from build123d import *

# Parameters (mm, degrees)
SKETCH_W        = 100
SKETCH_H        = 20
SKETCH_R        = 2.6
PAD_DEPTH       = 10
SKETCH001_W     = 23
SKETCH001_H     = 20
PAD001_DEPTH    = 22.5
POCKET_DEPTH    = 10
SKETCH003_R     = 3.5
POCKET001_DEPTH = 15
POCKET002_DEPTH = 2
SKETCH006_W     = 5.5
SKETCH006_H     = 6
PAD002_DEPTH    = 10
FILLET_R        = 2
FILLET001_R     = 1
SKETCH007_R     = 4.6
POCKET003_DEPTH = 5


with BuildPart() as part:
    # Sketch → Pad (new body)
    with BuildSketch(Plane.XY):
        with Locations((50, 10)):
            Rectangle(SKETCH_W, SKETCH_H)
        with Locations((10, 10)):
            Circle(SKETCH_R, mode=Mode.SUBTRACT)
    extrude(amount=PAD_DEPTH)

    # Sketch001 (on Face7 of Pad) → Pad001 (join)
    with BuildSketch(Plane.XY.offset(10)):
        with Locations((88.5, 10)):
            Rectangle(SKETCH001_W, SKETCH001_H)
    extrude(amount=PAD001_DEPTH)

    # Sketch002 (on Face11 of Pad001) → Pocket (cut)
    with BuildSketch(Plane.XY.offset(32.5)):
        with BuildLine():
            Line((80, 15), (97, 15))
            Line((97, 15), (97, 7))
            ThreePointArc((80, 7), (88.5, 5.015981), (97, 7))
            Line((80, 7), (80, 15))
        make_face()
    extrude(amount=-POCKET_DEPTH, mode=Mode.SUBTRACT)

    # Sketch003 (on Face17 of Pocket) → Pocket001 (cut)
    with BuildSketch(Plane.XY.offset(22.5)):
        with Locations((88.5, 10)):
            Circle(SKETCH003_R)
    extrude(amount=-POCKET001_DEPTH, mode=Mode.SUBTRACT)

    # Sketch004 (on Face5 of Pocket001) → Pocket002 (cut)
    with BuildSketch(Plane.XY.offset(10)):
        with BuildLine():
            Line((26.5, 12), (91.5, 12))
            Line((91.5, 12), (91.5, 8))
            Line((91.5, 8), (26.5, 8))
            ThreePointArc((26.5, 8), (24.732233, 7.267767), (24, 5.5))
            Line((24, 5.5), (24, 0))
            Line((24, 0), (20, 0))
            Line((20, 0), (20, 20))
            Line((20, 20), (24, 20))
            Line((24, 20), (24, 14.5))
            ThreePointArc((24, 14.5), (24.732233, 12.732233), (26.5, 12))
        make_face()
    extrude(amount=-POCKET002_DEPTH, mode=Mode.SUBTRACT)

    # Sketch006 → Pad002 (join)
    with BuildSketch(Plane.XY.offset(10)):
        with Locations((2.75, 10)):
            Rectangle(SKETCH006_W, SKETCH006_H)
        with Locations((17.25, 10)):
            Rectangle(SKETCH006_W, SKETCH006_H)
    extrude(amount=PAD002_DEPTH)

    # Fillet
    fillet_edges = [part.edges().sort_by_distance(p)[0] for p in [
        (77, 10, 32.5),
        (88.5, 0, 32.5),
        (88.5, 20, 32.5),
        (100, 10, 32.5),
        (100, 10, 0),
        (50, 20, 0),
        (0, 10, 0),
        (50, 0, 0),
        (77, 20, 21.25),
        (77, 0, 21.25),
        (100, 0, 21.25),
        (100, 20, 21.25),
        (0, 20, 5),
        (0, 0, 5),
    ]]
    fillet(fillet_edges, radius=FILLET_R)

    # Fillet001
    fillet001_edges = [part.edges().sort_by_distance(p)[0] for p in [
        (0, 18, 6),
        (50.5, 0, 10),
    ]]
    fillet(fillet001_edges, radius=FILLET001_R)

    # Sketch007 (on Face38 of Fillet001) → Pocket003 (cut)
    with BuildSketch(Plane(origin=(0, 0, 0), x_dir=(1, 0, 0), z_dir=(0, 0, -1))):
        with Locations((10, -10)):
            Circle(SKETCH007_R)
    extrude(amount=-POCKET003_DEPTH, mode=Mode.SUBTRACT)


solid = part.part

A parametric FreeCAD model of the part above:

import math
import FreeCAD as App
import Part
import Sketcher
from FreeCAD import Vector


def edges_at(feature, points):
    """Names of the edges that pass closest to the given points."""
    edges = feature.Shape.Edges
    near = lambda p: min(range(len(edges)), key=lambda i: edges[i].distToShape(Part.Vertex(*p))[0])
    return sorted({f"Edge{near(p) + 1}" for p in points})

doc = App.newDocument("Part")
params = doc.addObject("Spreadsheet::Sheet", "Params")
for row, (alias, value) in enumerate([
    ("sketch1_diameter", "5.2 mm"),
    ("sketch1_width", "100 mm"),
    ("sketch1_height", "20 mm"),
    ("pad1_length", "10 mm"),
    ("sketch2_width", "23 mm"),
    ("sketch2_height", "20 mm"),
    ("pad2_length", "22.5 mm"),
    ("sketch3_radius", "19.2 mm"),
    ("sketch3_width", "17 mm"),
    ("sketch3_height", "8 mm"),
    ("pocket1_length", "10 mm"),
    ("sketch4_diameter", "7 mm"),
    ("pocket2_length", "15 mm"),
    ("sketch5_radius", "2.5 mm"),
    ("sketch5_width", "65 mm"),
    ("sketch5_width2", "4 mm"),
    ("sketch5_height", "20 mm"),
    ("pocket3_length", "2 mm"),
    ("sketch6_height", "6 mm"),
    ("sketch6_width", "5.5 mm"),
    ("pad3_length", "10 mm"),
    ("fillet_radius", "2 mm"),
    ("fillet2_radius", "1 mm"),
    ("sketch7_diameter", "9.2 mm"),
    ("pocket4_length", "5 mm"),
], start=1):
    params.set(f"A{row}", alias)
    params.set(f"B{row}", "=" + value)
    params.setAlias(f"B{row}", alias)

body = doc.addObject("PartDesign::Body", "Body")

# Sketch on XY plane
sketch1 = body.newObject("Sketcher::SketchObject", "Sketch")
sketch1.AttachmentSupport = (doc.getObject("XY_Plane"), [""])
sketch1.MapMode = "FlatFace"
sketch1.addGeometry([
    Part.LineSegment(Vector(0, 20, 0), Vector(0, 0, 0)),  # 0
    Part.LineSegment(Vector(0, 0, 0), Vector(100, 0, 0)),  # 1
    Part.LineSegment(Vector(100, 0, 0), Vector(100, 20, 0)),  # 2
    Part.LineSegment(Vector(100, 20, 0), Vector(0, 20, 0)),  # 3
    Part.Circle(Vector(10, 10, 0), Vector(0, 0, 1), 2.6),  # 4
], False)
sketch1.addConstraint([
    Sketcher.Constraint("Coincident", 0, 2, 1, 1),
    Sketcher.Constraint("Coincident", 1, 2, 2, 1),
    Sketcher.Constraint("Coincident", 2, 2, 3, 1),
    Sketcher.Constraint("Coincident", 3, 2, 0, 1),
    Sketcher.Constraint("Vertical", 0),
    Sketcher.Constraint("Horizontal", 1),
    Sketcher.Constraint("Vertical", 2),
    Sketcher.Constraint("Horizontal", 3),
    Sketcher.Constraint("Coincident", 0, 2, -1, 1),
    Sketcher.Constraint("Diameter", 4, 5.2),
    Sketcher.Constraint("DistanceX", 1, 1, 1, 2, 100.0),
    Sketcher.Constraint("DistanceY", 0, 2, 0, 1, 20.0),
    Sketcher.Constraint("DistanceX", -1, 1, 4, 3, 10.0),
    Sketcher.Constraint("DistanceY", -1, 1, 4, 3, 10.0),
])
sketch1.setExpression("Constraints[9]", "Params.sketch1_diameter")
sketch1.setExpression("Constraints[10]", "Params.sketch1_width")
sketch1.setExpression("Constraints[11]", "Params.sketch1_height")
pad1 = body.newObject("PartDesign::Pad", "Pad")
pad1.Profile = sketch1
pad1.setExpression("Length", "Params.pad1_length")

# Sketch on XY plane
sketch2 = body.newObject("Sketcher::SketchObject", "Sketch001")
sketch2.AttachmentSupport = (doc.getObject("XY_Plane"), [""])
sketch2.MapMode = "FlatFace"
sketch2.AttachmentOffset = App.Placement(Vector(0, 0, 10), App.Rotation())
sketch2.addGeometry([
    Part.LineSegment(Vector(77, 20, 0), Vector(77, 0, 0)),
    Part.LineSegment(Vector(77, 0, 0), Vector(100, 0, 0)),
    Part.LineSegment(Vector(100, 0, 0), Vector(100, 20, 0)),
    Part.LineSegment(Vector(100, 20, 0), Vector(77, 20, 0)),
], False)
sketch2.addConstraint([
    Sketcher.Constraint("Coincident", 0, 2, 1, 1),
    Sketcher.Constraint("Coincident", 1, 2, 2, 1),
    Sketcher.Constraint("Coincident", 2, 2, 3, 1),
    Sketcher.Constraint("Coincident", 3, 2, 0, 1),
    Sketcher.Constraint("Vertical", 0),
    Sketcher.Constraint("Horizontal", 1),
    Sketcher.Constraint("Vertical", 2),
    Sketcher.Constraint("Horizontal", 3),
    Sketcher.Constraint("PointOnObject", 0, 2, -1),
    Sketcher.Constraint("DistanceX", 1, 1, 1, 2, 23.0),
    Sketcher.Constraint("DistanceY", 0, 2, 0, 1, 20.0),
    Sketcher.Constraint("DistanceX", -1, 1, 0, 2, 77.0),
])
sketch2.setExpression("Constraints[9]", "Params.sketch2_width")
sketch2.setExpression("Constraints[10]", "Params.sketch2_height")
pad2 = body.newObject("PartDesign::Pad", "Pad001")
pad2.Profile = sketch2
pad2.setExpression("Length", "Params.pad2_length")

# Sketch on XY plane
sketch3 = body.newObject("Sketcher::SketchObject", "Sketch002")
sketch3.AttachmentSupport = (doc.getObject("XY_Plane"), [""])
sketch3.MapMode = "FlatFace"
sketch3.AttachmentOffset = App.Placement(Vector(0, 0, 32.5), App.Rotation())
sketch3.addGeometry([
    Part.LineSegment(Vector(97, 15, 0), Vector(80, 15, 0)),
    Part.LineSegment(Vector(80, 15, 0), Vector(80, 7, 0)),
    Part.ArcOfCircle(Part.Circle(Vector(88, 24, 0), Vector(0, 0, 1), 19), math.radians(-116), math.radians(-64)),
    Part.LineSegment(Vector(97, 7, 0), Vector(97, 15, 0)),
], False)
sketch3.addConstraint([
    Sketcher.Constraint("Coincident", 0, 2, 1, 1),
    Sketcher.Constraint("Coincident", 1, 2, 2, 1),
    Sketcher.Constraint("Coincident", 2, 2, 3, 1),
    Sketcher.Constraint("Coincident", 3, 2, 0, 1),
    Sketcher.Constraint("Horizontal", 0),
    Sketcher.Constraint("Vertical", 1),
    Sketcher.Constraint("Vertical", 3),
    Sketcher.Constraint("Horizontal", 1, 2, 2, 2),
    Sketcher.Constraint("Radius", 2, 19.2),
    Sketcher.Constraint("DistanceX", 0, 2, 0, 1, 17.0),
    Sketcher.Constraint("DistanceY", 1, 2, 1, 1, 8.0),
    Sketcher.Constraint("DistanceX", -1, 1, 0, 2, 80.0),
    Sketcher.Constraint("DistanceY", -1, 1, 0, 2, 15.0),
])
sketch3.setExpression("Constraints[8]", "Params.sketch3_radius")
sketch3.setExpression("Constraints[9]", "Params.sketch3_width")
sketch3.setExpression("Constraints[10]", "Params.sketch3_height")
pocket1 = body.newObject("PartDesign::Pocket", "Pocket")
pocket1.Profile = sketch3
pocket1.setExpression("Length", "Params.pocket1_length")

# Sketch on XY plane
sketch4 = body.newObject("Sketcher::SketchObject", "Sketch003")
sketch4.AttachmentSupport = (doc.getObject("XY_Plane"), [""])
sketch4.MapMode = "FlatFace"
sketch4.AttachmentOffset = App.Placement(Vector(0, 0, 22.5), App.Rotation())
sketch4.addGeometry(Part.Circle(Vector(88.5, 10, 0), Vector(0, 0, 1), 3.5), False)
sketch4.addConstraint([
    Sketcher.Constraint("Diameter", 0, 7.0),
    Sketcher.Constraint("DistanceY", -1, 1, 0, 3, 10.0),
    Sketcher.Constraint("DistanceX", -1, 1, 0, 3, 88.5),
])
sketch4.setExpression("Constraints[0]", "Params.sketch4_diameter")
pocket2 = body.newObject("PartDesign::Pocket", "Pocket001")
pocket2.Profile = sketch4
pocket2.setExpression("Length", "Params.pocket2_length")

# Sketch on XY plane
sketch5 = body.newObject("Sketcher::SketchObject", "Sketch004")
sketch5.AttachmentSupport = (doc.getObject("XY_Plane"), [""])
sketch5.MapMode = "FlatFace"
sketch5.AttachmentOffset = App.Placement(Vector(0, 0, 10), App.Rotation())
sketch5.addGeometry([
    Part.LineSegment(Vector(91.5, 12, 0), Vector(26.5, 12, 0)),  # 0
    Part.ArcOfCircle(Part.Circle(Vector(26.5, 14.5, 0), Vector(0, 0, 1), 2.5), math.radians(180), math.radians(270)),  # 1
    Part.LineSegment(Vector(24, 14.5, 0), Vector(24, 20, 0)),  # 2
    Part.LineSegment(Vector(24, 20, 0), Vector(20, 20, 0)),  # 3
    Part.LineSegment(Vector(20, 20, 0), Vector(20, 0, 0)),  # 4
    Part.LineSegment(Vector(20, 0, 0), Vector(24, 0, 0)),  # 5
    Part.LineSegment(Vector(24, 0, 0), Vector(24, 5.5, 0)),  # 6
    Part.ArcOfCircle(Part.Circle(Vector(26.5, 5.5, 0), Vector(0, 0, 1), 2.5), math.radians(90), math.radians(180)),  # 7
    Part.LineSegment(Vector(26.5, 8, 0), Vector(91.5, 8, 0)),  # 8
    Part.LineSegment(Vector(91.5, 8, 0), Vector(91.5, 12, 0)),  # 9
], False)
sketch5.addConstraint([
    Sketcher.Constraint("Tangent", 0, 2, 1, 2),
    Sketcher.Constraint("Tangent", 1, 1, 2, 1),
    Sketcher.Constraint("Coincident", 2, 2, 3, 1),
    Sketcher.Constraint("Coincident", 3, 2, 4, 1),
    Sketcher.Constraint("Coincident", 4, 2, 5, 1),
    Sketcher.Constraint("Coincident", 5, 2, 6, 1),
    Sketcher.Constraint("Tangent", 6, 2, 7, 2),
    Sketcher.Constraint("Tangent", 7, 1, 8, 1),
    Sketcher.Constraint("Coincident", 8, 2, 9, 1),
    Sketcher.Constraint("Coincident", 9, 2, 0, 1),
    Sketcher.Constraint("Horizontal", 0),
    Sketcher.Constraint("Vertical", 2),
    Sketcher.Constraint("Horizontal", 3),
    Sketcher.Constraint("Vertical", 4),
    Sketcher.Constraint("Horizontal", 5),
    Sketcher.Constraint("Vertical", 6),
    Sketcher.Constraint("Horizontal", 8),
    Sketcher.Constraint("Vertical", 9),
    Sketcher.Constraint("Equal", 1, 7),
    Sketcher.Constraint("PointOnObject", 4, 2, -1),
    Sketcher.Constraint("Vertical", 1, 3, 7, 3),
    Sketcher.Constraint("Equal", 2, 6),
    Sketcher.Constraint("Equal", 5, 9),
    Sketcher.Constraint("Radius", 1, 2.5),
    Sketcher.Constraint("DistanceX", 0, 2, 0, 1, 65.0),
    Sketcher.Constraint("DistanceX", 3, 2, 3, 1, 4.0),
    Sketcher.Constraint("DistanceY", 4, 2, 4, 1, 20.0),
    Sketcher.Constraint("DistanceX", -1, 1, 1, 1, 24.0),
])
sketch5.setExpression("Constraints[23]", "Params.sketch5_radius")
sketch5.setExpression("Constraints[24]", "Params.sketch5_width")
sketch5.setExpression("Constraints[25]", "Params.sketch5_width2")
sketch5.setExpression("Constraints[26]", "Params.sketch5_height")
pocket3 = body.newObject("PartDesign::Pocket", "Pocket002")
pocket3.Profile = sketch5
pocket3.setExpression("Length", "Params.pocket3_length")

# Sketch on XY plane
sketch6 = body.newObject("Sketcher::SketchObject", "Sketch005")
sketch6.AttachmentSupport = (doc.getObject("XY_Plane"), [""])
sketch6.MapMode = "FlatFace"
sketch6.AttachmentOffset = App.Placement(Vector(0, 0, 10), App.Rotation())
sketch6.addGeometry([
    Part.LineSegment(Vector(0, 13, 0), Vector(0, 7, 0)),  # 0
    Part.LineSegment(Vector(0, 7, 0), Vector(6, 7, 0)),  # 1
    Part.LineSegment(Vector(6, 7, 0), Vector(6, 13, 0)),  # 2
    Part.LineSegment(Vector(6, 13, 0), Vector(0, 13, 0)),  # 3
    Part.LineSegment(Vector(14, 13, 0), Vector(14, 7, 0)),  # 4
    Part.LineSegment(Vector(14, 7, 0), Vector(20, 7, 0)),  # 5
    Part.LineSegment(Vector(20, 7, 0), Vector(20, 13, 0)),  # 6
    Part.LineSegment(Vector(20, 13, 0), Vector(14, 13, 0)),  # 7
], False)
sketch6.addConstraint([
    Sketcher.Constraint("Coincident", 0, 2, 1, 1),
    Sketcher.Constraint("Coincident", 1, 2, 2, 1),
    Sketcher.Constraint("Coincident", 2, 2, 3, 1),
    Sketcher.Constraint("Coincident", 3, 2, 0, 1),
    Sketcher.Constraint("Coincident", 4, 2, 5, 1),
    Sketcher.Constraint("Coincident", 5, 2, 6, 1),
    Sketcher.Constraint("Coincident", 6, 2, 7, 1),
    Sketcher.Constraint("Coincident", 7, 2, 4, 1),
    Sketcher.Constraint("Vertical", 0),
    Sketcher.Constraint("Horizontal", 1),
    Sketcher.Constraint("Vertical", 2),
    Sketcher.Constraint("Horizontal", 3),
    Sketcher.Constraint("Vertical", 4),
    Sketcher.Constraint("Horizontal", 5),
    Sketcher.Constraint("Vertical", 6),
    Sketcher.Constraint("Horizontal", 7),
    Sketcher.Constraint("PointOnObject", 0, 2, -2),
    Sketcher.Constraint("Horizontal", 1, 2, 4, 2),
    Sketcher.Constraint("Horizontal", 3, 2, 6, 2),
    Sketcher.Constraint("Equal", 3, 5),
    Sketcher.Constraint("DistanceY", 0, 2, 0, 1, 6.0),
    Sketcher.Constraint("DistanceX", 1, 1, 1, 2, 5.5),
    Sketcher.Constraint("DistanceY", -1, 1, 0, 2, 7.0),
    Sketcher.Constraint("DistanceX", -1, 1, 5, 2, 20.0),
])
sketch6.setExpression("Constraints[20]", "Params.sketch6_height")
sketch6.setExpression("Constraints[21]", "Params.sketch6_width")
pad3 = body.newObject("PartDesign::Pad", "Pad002")
pad3.Profile = sketch6
pad3.setExpression("Length", "Params.pad3_length")
doc.recompute()

fillet = body.newObject("PartDesign::Fillet", "Fillet")
fillet.Base = (pad3, edges_at(pad3, [
    (77, 10, 32.5),
    (88.5, 0, 32.5),
    (88.5, 20, 32.5),
    (100, 10, 32.5),
    (100, 10, 0),
    (50, 20, 0),
    (0, 10, 0),
    (50, 0, 0),
    (77, 20, 21.25),
    (77, 0, 21.25),
    (100, 0, 16.25),
    (100, 20, 16.25),
    (0, 20, 5),
    (0, 0, 5),
]))
fillet.setExpression("Radius", "Params.fillet_radius")
doc.recompute()

fillet2 = body.newObject("PartDesign::Fillet", "Fillet001")
fillet2.Base = (fillet, edges_at(fillet, [(0, 18, 6), (51.5, 0, 10)]))
fillet2.setExpression("Radius", "Params.fillet2_radius")

# Sketch on XY plane
sketch7 = body.newObject("Sketcher::SketchObject", "Sketch006")
sketch7.AttachmentSupport = (doc.getObject("XY_Plane"), [""])
sketch7.MapMode = "FlatFace"
sketch7.addGeometry(Part.Circle(Vector(10, 10, 0), Vector(0, 0, 1), 4.6), False)
sketch7.addConstraint([
    Sketcher.Constraint("Diameter", 0, 9.2),
    Sketcher.Constraint("DistanceX", -1, 1, 0, 3, 10.0),
    Sketcher.Constraint("DistanceY", -1, 1, 0, 3, 10.0),
])
sketch7.setExpression("Constraints[0]", "Params.sketch7_diameter")
pocket4 = body.newObject("PartDesign::Pocket", "Pocket003")
pocket4.Profile = sketch7
pocket4.setExpression("Length", "Params.pocket4_length")
pocket4.Reversed = True

doc.recompute()
